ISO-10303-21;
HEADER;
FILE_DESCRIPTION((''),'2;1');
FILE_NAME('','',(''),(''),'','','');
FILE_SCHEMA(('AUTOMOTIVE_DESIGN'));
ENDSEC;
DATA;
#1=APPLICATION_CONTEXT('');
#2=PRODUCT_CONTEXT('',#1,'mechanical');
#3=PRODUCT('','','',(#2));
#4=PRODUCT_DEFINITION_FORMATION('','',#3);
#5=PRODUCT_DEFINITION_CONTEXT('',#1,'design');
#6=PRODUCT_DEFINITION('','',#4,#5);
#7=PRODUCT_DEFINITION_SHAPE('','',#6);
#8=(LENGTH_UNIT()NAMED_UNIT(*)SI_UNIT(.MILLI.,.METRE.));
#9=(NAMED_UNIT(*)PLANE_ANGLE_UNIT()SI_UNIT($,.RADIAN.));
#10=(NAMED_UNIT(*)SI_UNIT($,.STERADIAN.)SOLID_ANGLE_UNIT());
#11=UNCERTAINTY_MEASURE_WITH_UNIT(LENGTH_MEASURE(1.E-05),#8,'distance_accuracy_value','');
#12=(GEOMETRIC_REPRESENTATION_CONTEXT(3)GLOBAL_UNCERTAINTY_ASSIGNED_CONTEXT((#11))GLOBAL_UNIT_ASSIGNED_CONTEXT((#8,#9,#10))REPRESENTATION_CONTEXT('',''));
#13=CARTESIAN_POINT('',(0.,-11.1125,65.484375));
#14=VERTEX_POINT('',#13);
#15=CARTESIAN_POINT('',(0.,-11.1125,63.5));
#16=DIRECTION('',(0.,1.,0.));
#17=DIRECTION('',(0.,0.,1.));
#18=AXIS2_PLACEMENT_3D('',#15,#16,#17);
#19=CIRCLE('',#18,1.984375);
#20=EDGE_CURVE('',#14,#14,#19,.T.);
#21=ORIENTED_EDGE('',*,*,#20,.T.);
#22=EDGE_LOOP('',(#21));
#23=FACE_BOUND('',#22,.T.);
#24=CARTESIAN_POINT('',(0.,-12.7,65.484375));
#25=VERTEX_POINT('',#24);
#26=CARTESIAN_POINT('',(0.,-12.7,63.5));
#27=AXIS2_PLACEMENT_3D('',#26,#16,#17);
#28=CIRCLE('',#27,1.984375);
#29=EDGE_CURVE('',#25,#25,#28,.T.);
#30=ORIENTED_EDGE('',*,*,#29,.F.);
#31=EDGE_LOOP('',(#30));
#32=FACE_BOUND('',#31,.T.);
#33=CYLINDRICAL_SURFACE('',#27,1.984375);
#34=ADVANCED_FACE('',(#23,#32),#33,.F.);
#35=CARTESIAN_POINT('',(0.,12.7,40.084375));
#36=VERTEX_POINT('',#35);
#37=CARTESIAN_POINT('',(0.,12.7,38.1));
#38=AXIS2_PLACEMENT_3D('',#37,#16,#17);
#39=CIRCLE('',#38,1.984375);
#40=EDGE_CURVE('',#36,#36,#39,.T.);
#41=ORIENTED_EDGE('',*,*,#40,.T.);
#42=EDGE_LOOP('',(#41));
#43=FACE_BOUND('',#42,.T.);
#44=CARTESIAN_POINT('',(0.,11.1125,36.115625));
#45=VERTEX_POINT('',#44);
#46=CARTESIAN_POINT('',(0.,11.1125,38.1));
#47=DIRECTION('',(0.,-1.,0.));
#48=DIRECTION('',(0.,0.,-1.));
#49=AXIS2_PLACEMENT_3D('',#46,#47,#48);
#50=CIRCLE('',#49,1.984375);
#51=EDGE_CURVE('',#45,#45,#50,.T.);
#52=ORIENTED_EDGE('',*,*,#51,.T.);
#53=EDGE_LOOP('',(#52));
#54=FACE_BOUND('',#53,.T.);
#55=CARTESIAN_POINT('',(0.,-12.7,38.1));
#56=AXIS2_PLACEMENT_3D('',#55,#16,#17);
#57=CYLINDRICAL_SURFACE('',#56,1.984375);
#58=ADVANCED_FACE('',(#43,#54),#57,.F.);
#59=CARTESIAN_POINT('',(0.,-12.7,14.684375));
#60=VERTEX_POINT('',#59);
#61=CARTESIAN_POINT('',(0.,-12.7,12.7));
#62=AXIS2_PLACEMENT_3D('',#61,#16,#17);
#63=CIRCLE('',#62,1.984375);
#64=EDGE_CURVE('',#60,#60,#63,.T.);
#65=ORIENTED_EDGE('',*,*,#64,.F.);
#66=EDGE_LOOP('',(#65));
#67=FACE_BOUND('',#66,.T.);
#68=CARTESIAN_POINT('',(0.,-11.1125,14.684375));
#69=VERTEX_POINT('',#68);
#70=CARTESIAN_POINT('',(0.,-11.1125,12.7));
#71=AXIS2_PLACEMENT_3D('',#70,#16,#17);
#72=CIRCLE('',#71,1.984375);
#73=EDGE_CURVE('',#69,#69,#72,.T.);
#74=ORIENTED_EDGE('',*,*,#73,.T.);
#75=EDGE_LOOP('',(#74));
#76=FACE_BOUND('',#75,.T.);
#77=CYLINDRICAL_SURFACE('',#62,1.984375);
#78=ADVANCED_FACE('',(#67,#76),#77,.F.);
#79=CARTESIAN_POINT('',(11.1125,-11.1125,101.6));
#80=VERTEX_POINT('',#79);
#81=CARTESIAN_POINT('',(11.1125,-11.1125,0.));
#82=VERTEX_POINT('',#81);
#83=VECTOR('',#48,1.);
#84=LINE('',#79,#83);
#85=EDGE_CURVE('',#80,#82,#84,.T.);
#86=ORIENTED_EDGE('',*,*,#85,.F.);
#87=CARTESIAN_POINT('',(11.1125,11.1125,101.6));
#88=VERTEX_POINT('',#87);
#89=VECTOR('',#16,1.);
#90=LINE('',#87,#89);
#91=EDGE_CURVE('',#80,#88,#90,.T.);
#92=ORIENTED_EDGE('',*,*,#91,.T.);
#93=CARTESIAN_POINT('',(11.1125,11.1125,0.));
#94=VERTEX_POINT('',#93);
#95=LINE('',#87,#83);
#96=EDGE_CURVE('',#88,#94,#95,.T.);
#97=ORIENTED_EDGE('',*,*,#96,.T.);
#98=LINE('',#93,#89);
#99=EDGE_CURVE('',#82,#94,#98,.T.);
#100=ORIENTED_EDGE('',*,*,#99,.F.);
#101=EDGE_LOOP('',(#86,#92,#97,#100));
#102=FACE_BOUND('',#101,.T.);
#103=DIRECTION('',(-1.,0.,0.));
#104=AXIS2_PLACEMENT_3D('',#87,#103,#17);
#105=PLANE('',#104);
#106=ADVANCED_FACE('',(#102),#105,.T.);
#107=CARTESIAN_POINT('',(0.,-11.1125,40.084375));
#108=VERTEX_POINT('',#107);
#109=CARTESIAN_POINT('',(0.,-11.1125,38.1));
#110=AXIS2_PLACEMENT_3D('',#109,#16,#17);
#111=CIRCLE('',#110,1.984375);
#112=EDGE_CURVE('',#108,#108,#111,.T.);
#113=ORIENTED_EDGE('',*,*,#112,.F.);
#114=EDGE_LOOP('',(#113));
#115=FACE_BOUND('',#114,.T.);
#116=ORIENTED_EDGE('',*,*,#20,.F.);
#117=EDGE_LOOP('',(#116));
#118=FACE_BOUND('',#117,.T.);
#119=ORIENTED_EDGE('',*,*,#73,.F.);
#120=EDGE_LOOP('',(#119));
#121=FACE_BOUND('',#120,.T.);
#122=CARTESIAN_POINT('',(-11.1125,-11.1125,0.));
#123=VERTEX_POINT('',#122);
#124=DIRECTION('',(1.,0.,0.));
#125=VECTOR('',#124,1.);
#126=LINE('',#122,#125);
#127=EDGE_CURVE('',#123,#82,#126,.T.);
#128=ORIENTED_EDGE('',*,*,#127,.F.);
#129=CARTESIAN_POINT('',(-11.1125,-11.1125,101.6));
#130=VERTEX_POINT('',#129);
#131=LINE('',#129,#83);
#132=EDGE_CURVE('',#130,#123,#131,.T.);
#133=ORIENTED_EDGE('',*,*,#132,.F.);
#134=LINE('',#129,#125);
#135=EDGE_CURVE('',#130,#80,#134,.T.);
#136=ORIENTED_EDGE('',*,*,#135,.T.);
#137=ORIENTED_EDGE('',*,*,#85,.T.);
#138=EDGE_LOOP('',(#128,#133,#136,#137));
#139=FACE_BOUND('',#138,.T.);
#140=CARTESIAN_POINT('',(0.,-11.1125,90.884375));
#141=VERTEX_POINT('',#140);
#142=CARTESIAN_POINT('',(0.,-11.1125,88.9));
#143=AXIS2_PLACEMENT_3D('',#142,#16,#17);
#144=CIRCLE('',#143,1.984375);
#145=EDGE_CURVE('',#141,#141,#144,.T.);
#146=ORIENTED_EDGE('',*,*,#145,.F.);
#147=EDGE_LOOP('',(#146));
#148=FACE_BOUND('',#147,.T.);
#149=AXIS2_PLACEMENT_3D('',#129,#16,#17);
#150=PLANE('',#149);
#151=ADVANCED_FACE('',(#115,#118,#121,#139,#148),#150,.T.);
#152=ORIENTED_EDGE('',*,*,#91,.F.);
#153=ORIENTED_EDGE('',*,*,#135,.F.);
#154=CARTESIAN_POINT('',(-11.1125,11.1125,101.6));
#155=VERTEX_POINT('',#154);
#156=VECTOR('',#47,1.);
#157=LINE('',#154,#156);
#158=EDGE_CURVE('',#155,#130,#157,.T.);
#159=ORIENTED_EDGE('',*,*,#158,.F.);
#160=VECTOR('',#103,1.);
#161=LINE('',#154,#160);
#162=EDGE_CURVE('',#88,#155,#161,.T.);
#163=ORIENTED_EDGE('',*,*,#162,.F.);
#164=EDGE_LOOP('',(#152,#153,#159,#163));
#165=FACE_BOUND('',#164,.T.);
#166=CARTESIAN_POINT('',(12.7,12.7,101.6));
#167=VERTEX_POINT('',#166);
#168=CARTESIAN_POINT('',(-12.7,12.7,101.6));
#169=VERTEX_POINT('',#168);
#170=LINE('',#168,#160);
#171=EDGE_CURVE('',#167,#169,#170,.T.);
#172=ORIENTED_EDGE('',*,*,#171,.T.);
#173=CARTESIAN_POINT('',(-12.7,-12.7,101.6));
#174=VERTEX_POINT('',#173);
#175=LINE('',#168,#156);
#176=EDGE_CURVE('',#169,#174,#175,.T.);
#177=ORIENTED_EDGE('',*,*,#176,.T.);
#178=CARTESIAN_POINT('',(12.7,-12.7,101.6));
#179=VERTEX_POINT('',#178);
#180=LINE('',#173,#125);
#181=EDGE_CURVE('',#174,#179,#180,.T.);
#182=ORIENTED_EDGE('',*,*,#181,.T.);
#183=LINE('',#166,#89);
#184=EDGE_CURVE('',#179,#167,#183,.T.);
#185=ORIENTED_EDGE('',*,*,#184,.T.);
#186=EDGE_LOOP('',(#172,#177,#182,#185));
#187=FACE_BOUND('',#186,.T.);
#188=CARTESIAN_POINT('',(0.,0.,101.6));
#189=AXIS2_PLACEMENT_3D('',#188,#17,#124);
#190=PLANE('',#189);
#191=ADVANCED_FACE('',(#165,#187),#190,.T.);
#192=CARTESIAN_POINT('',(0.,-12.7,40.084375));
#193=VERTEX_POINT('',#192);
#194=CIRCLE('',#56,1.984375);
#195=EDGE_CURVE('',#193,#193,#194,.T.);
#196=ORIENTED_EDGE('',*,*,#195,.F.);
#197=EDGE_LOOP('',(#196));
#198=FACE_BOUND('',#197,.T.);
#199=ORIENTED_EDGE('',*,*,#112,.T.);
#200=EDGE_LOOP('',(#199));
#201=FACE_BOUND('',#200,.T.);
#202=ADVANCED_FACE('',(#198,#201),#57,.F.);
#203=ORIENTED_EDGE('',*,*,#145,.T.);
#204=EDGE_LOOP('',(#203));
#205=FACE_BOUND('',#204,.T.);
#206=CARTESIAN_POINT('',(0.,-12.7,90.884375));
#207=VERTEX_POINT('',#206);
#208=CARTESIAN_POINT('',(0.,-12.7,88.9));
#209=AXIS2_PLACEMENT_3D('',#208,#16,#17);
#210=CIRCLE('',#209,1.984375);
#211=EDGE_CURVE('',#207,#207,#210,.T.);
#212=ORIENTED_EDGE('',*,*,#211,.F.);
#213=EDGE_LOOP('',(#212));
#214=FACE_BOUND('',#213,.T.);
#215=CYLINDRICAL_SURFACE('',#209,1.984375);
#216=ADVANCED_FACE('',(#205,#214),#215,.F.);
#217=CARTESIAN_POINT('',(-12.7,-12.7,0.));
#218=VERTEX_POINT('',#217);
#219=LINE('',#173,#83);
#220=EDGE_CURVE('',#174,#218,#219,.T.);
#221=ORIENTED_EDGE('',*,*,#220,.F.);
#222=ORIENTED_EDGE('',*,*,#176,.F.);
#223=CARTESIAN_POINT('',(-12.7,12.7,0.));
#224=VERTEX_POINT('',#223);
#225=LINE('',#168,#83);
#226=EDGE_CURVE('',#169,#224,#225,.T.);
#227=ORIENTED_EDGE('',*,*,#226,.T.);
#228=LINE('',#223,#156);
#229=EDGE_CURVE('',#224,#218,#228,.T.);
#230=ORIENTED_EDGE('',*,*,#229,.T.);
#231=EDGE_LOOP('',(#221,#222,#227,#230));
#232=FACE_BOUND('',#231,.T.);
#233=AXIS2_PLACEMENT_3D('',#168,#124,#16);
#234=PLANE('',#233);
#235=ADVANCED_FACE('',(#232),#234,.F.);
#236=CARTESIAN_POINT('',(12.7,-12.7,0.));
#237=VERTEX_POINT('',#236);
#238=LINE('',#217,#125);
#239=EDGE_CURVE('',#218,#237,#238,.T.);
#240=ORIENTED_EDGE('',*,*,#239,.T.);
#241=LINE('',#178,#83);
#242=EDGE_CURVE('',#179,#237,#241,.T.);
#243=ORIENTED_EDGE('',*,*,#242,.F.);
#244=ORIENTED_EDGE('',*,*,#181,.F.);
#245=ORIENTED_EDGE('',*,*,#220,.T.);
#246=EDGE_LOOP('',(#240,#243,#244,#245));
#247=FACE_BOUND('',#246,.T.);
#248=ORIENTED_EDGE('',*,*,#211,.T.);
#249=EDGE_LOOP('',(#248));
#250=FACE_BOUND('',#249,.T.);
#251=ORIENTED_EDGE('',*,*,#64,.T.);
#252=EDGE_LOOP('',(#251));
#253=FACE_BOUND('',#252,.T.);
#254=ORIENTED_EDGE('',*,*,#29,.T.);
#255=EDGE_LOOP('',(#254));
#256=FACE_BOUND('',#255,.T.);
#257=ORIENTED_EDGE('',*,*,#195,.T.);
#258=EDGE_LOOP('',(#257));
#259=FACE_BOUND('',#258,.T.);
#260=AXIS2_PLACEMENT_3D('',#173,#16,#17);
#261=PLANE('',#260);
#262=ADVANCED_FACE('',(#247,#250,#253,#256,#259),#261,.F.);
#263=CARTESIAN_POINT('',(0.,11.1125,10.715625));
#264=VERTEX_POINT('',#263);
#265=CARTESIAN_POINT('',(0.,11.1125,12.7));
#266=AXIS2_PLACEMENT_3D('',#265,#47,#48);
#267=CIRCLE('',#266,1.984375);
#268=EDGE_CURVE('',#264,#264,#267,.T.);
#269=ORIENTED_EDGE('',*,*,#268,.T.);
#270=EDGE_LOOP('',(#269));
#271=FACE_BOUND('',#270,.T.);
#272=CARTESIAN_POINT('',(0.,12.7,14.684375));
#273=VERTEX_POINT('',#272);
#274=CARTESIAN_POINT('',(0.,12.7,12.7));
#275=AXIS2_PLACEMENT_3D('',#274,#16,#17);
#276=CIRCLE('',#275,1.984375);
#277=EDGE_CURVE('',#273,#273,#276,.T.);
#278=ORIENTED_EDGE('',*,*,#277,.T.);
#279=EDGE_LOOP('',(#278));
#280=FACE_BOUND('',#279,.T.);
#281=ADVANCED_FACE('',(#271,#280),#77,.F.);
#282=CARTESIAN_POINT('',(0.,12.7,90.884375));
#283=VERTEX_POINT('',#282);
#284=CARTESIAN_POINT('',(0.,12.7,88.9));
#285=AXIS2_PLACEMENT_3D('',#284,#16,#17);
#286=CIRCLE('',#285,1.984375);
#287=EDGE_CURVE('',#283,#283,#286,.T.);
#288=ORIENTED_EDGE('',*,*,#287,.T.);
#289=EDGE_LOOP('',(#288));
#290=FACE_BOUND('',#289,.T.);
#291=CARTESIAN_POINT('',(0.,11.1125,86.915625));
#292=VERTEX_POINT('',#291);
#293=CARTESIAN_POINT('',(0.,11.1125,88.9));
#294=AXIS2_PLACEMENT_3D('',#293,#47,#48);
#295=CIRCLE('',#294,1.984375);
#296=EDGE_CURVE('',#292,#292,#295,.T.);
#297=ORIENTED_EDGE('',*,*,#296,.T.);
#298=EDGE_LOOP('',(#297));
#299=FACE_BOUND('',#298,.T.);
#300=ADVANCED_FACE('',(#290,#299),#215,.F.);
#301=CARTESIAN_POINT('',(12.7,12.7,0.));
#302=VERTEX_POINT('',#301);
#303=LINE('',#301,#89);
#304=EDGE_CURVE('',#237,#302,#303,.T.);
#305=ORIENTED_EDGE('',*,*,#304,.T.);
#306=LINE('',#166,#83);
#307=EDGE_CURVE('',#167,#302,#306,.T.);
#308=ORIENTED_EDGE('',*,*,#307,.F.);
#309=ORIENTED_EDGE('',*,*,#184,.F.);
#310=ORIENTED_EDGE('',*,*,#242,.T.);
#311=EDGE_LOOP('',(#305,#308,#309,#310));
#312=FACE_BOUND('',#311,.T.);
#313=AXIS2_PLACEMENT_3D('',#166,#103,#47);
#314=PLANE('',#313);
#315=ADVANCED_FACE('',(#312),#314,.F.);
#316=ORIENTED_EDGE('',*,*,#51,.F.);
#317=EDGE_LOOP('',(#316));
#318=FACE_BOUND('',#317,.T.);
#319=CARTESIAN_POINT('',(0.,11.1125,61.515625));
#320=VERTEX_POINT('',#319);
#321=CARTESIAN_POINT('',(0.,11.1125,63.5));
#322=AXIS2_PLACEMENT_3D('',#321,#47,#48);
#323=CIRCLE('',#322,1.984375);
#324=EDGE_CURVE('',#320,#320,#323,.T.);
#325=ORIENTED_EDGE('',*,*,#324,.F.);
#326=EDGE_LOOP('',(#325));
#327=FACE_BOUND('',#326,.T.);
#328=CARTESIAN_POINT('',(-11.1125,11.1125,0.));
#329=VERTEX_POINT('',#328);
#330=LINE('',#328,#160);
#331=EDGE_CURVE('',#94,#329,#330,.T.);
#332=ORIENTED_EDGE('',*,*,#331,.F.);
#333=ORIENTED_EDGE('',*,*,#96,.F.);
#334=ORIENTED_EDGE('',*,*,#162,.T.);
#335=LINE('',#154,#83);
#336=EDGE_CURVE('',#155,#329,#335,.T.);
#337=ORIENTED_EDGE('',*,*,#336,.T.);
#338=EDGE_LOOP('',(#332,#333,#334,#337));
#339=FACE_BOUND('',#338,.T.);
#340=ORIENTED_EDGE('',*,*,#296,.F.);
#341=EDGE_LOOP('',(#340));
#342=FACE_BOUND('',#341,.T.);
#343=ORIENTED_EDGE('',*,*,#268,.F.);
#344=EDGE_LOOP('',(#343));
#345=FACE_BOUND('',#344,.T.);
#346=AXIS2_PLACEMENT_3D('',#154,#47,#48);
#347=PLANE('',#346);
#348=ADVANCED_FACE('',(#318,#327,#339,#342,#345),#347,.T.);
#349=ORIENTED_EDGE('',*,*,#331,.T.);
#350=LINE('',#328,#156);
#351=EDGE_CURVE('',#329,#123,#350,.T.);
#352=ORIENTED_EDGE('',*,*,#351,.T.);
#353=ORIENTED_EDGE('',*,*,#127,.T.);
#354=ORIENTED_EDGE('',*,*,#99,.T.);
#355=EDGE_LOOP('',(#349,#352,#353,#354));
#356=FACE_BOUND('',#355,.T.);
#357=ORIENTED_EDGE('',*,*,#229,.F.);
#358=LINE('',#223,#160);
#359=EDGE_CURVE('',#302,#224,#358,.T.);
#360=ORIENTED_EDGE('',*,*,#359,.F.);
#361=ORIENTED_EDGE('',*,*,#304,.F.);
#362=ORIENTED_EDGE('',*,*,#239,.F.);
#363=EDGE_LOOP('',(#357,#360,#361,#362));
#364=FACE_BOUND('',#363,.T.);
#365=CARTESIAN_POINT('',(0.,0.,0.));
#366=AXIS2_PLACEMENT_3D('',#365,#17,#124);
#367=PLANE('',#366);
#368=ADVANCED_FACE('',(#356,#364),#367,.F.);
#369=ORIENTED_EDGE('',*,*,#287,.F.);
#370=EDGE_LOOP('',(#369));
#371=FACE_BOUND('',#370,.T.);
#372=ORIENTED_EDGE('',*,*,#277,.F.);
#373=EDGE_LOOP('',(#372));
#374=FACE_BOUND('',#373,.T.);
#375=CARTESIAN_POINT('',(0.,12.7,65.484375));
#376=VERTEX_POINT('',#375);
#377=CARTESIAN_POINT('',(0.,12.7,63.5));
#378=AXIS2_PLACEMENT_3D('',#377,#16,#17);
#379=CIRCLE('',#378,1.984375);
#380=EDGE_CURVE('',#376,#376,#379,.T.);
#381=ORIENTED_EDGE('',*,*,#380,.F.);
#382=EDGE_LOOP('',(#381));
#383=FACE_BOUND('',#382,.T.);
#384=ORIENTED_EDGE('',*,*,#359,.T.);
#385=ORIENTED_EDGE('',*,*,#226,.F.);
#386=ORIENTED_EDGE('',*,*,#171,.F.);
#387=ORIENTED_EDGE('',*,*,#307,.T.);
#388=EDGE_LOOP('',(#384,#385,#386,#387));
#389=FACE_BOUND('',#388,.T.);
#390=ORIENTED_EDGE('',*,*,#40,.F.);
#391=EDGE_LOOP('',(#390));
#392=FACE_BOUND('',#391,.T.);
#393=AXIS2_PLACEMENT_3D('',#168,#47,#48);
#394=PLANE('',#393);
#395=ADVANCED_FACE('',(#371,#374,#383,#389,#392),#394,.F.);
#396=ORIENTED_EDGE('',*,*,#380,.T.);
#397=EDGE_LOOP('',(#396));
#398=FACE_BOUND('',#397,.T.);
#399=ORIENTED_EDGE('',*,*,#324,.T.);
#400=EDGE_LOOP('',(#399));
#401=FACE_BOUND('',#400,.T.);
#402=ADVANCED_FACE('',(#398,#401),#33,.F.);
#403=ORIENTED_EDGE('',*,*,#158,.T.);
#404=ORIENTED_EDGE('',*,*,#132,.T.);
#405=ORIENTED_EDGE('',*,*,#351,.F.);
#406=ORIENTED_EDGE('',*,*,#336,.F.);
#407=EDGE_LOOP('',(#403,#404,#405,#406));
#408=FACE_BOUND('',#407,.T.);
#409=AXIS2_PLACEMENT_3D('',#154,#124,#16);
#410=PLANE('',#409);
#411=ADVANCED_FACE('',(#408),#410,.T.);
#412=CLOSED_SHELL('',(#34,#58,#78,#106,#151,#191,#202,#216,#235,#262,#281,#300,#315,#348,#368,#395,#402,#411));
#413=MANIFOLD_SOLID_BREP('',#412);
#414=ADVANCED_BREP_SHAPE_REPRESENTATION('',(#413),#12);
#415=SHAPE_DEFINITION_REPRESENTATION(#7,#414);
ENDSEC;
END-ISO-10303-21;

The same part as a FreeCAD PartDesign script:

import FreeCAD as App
import Part
import Sketcher
Q = App.Units.Quantity

doc = App.newDocument("Part")
body = doc.addObject("PartDesign::Body", "Body")

sketch1 = body.newObject("Sketcher::SketchObject", "Sketch")
sketch1.AttachmentSupport = (doc.getObject("XY_Plane"), [""])
sketch1.MapMode = "FlatFace"
sketch1.addGeometry([
    Part.LineSegment(App.Vector(-13, 13, 0), App.Vector(-13, -13, 0)),
    Part.LineSegment(App.Vector(-13, -13, 0), App.Vector(13, -13, 0)),
    Part.LineSegment(App.Vector(13, -13, 0), App.Vector(13, 13, 0)),
    Part.LineSegment(App.Vector(13, 13, 0), App.Vector(-13, 13, 0)),
    Part.LineSegment(App.Vector(11, -11, 0), App.Vector(-11, -11, 0)),
    Part.LineSegment(App.Vector(-11, -11, 0), App.Vector(-11, 11, 0)),
    Part.LineSegment(App.Vector(-11, 11, 0), App.Vector(11, 11, 0)),
    Part.LineSegment(App.Vector(11, 11, 0), App.Vector(11, -11, 0)),
], False)
sketch1.addConstraint([
    Sketcher.Constraint("Coincident", 0, 2, 1, 1),
    Sketcher.Constraint("Coincident", 1, 2, 2, 1),
    Sketcher.Constraint("Coincident", 2, 2, 3, 1),
    Sketcher.Constraint("Coincident", 3, 2, 0, 1),
    Sketcher.Constraint("Coincident", 4, 2, 5, 1),
    Sketcher.Constraint("Coincident", 5, 2, 6, 1),
    Sketcher.Constraint("Coincident", 6, 2, 7, 1),
    Sketcher.Constraint("Coincident", 7, 2, 4, 1),
    Sketcher.Constraint("Vertical", 0),
    Sketcher.Constraint("Horizontal", 1),
    Sketcher.Constraint("Vertical", 2),
    Sketcher.Constraint("Horizontal", 3),
    Sketcher.Constraint("Horizontal", 4),
    Sketcher.Constraint("Vertical", 5),
    Sketcher.Constraint("Horizontal", 6),
    Sketcher.Constraint("Vertical", 7),
    Sketcher.Constraint("Symmetric", 0, 2, 2, 2, -1, 1),
    Sketcher.Constraint("Symmetric", 4, 2, 6, 2, -1, 1),
    Sketcher.Constraint("Equal", 3, 0),
    Sketcher.Constraint("Equal", 6, 5),
    Sketcher.Constraint("DistanceX", 1, 1, 1, 2, Q("1 in")),
    Sketcher.Constraint("DistanceX", 4, 2, 4, 1, Q("0.875 in")),
])
pad1 = body.newObject("PartDesign::Pad", "Pad")
pad1.Profile = sketch1
pad1.Length = Q("4 in")

sketch2 = body.newObject("Sketcher::SketchObject", "Sketch001")
sketch2.AttachmentSupport = (doc.getObject("XZ_Plane"), [""])
sketch2.MapMode = "FlatFace"
sketch2.AttachmentOffset = App.Placement(App.Vector(0, 0, -0.5 * 25.4), App.Rotation())
sketch2.addGeometry([
    Part.Circle(App.Vector(0, 88.9, 0), App.Vector(0, 0, 1), 2),
    Part.Circle(App.Vector(0, 63.5, 0), App.Vector(0, 0, 1), 2),
    Part.Circle(App.Vector(0, 38.1, 0), App.Vector(0, 0, 1), 2),
    Part.Circle(App.Vector(0, 12.7, 0), App.Vector(0, 0, 1), 2),
    Part.Circle(App.Vector(0, -12.7, 0), App.Vector(0, 0, 1), 2),
    Part.Circle(App.Vector(0, -38.1, 0), App.Vector(0, 0, 1), 2),
    Part.Circle(App.Vector(0, -63.5, 0), App.Vector(0, 0, 1), 2),
    Part.Circle(App.Vector(0, -88.9, 0), App.Vector(0, 0, 1), 2),
    Part.Circle(App.Vector(0, -114.3, 0), App.Vector(0, 0, 1), 2),
    Part.Circle(App.Vector(0, -139.7, 0), App.Vector(0, 0, 1), 2),
    Part.Circle(App.Vector(0, -165.1, 0), App.Vector(0, 0, 1), 2),
    Part.Circle(App.Vector(0, -190.5, 0), App.Vector(0, 0, 1), 2),
], False)
sketch2.addConstraint([
    Sketcher.Constraint("Equal", 0, 1),
    Sketcher.Constraint("Equal", 1, 2),
    Sketcher.Constraint("Equal", 2, 3),
    Sketcher.Constraint("Equal", 3, 4),
    Sketcher.Constraint("Equal", 4, 5),
    Sketcher.Constraint("Equal", 5, 6),
    Sketcher.Constraint("Equal", 6, 7),
    Sketcher.Constraint("Equal", 7, 8),
    Sketcher.Constraint("Equal", 8, 9),
    Sketcher.Constraint("Equal", 9, 10),
    Sketcher.Constraint("Equal", 10, 11),
    Sketcher.Constraint("Symmetric", 3, 3, 4, 3, -1, 1),
    Sketcher.Constraint("Symmetric", 2, 3, 5, 3, -1, 1),
    Sketcher.Constraint("Symmetric", 1, 3, 6, 3, -1, 1),
    Sketcher.Constraint("Symmetric", 0, 3, 7, 3, -1, 1),
    Sketcher.Constraint("PointOnObject", 0, 3, -2),
    Sketcher.Constraint("PointOnObject", 1, 3, -2),
    Sketcher.Constraint("PointOnObject", 2, 3, -2),
    Sketcher.Constraint("PointOnObject", 3, 3, -2),
    Sketcher.Constraint("PointOnObject", 8, 3, -2),
    Sketcher.Constraint("PointOnObject", 9, 3, -2),
    Sketcher.Constraint("PointOnObject", 10, 3, -2),
    Sketcher.Constraint("PointOnObject", 11, 3, -2),
    Sketcher.Constraint("Diameter", 0, Q("0.15625 in")),
    Sketcher.Constraint("DistanceY", 1, 3, 0, 3, Q("1 in")),
    Sketcher.Constraint("DistanceY", 2, 3, 1, 3, Q("1 in")),
    Sketcher.Constraint("DistanceY", 3, 3, 2, 3, Q("1 in")),
    Sketcher.Constraint("DistanceY", 4, 3, 3, 3, Q("1 in")),
    Sketcher.Constraint("DistanceY", 8, 3, 7, 3, Q("1 in")),
    Sketcher.Constraint("DistanceY", 9, 3, 8, 3, Q("1 in")),
    Sketcher.Constraint("DistanceY", 10, 3, 9, 3, Q("1 in")),
    Sketcher.Constraint("DistanceY", 11, 3, 10, 3, Q("1 in")),
])
pocket1 = body.newObject("PartDesign::Pocket", "Pocket")
pocket1.Profile = sketch2
pocket1.Type = "ThroughAll"
pocket1.Reversed = True

doc.recompute()
